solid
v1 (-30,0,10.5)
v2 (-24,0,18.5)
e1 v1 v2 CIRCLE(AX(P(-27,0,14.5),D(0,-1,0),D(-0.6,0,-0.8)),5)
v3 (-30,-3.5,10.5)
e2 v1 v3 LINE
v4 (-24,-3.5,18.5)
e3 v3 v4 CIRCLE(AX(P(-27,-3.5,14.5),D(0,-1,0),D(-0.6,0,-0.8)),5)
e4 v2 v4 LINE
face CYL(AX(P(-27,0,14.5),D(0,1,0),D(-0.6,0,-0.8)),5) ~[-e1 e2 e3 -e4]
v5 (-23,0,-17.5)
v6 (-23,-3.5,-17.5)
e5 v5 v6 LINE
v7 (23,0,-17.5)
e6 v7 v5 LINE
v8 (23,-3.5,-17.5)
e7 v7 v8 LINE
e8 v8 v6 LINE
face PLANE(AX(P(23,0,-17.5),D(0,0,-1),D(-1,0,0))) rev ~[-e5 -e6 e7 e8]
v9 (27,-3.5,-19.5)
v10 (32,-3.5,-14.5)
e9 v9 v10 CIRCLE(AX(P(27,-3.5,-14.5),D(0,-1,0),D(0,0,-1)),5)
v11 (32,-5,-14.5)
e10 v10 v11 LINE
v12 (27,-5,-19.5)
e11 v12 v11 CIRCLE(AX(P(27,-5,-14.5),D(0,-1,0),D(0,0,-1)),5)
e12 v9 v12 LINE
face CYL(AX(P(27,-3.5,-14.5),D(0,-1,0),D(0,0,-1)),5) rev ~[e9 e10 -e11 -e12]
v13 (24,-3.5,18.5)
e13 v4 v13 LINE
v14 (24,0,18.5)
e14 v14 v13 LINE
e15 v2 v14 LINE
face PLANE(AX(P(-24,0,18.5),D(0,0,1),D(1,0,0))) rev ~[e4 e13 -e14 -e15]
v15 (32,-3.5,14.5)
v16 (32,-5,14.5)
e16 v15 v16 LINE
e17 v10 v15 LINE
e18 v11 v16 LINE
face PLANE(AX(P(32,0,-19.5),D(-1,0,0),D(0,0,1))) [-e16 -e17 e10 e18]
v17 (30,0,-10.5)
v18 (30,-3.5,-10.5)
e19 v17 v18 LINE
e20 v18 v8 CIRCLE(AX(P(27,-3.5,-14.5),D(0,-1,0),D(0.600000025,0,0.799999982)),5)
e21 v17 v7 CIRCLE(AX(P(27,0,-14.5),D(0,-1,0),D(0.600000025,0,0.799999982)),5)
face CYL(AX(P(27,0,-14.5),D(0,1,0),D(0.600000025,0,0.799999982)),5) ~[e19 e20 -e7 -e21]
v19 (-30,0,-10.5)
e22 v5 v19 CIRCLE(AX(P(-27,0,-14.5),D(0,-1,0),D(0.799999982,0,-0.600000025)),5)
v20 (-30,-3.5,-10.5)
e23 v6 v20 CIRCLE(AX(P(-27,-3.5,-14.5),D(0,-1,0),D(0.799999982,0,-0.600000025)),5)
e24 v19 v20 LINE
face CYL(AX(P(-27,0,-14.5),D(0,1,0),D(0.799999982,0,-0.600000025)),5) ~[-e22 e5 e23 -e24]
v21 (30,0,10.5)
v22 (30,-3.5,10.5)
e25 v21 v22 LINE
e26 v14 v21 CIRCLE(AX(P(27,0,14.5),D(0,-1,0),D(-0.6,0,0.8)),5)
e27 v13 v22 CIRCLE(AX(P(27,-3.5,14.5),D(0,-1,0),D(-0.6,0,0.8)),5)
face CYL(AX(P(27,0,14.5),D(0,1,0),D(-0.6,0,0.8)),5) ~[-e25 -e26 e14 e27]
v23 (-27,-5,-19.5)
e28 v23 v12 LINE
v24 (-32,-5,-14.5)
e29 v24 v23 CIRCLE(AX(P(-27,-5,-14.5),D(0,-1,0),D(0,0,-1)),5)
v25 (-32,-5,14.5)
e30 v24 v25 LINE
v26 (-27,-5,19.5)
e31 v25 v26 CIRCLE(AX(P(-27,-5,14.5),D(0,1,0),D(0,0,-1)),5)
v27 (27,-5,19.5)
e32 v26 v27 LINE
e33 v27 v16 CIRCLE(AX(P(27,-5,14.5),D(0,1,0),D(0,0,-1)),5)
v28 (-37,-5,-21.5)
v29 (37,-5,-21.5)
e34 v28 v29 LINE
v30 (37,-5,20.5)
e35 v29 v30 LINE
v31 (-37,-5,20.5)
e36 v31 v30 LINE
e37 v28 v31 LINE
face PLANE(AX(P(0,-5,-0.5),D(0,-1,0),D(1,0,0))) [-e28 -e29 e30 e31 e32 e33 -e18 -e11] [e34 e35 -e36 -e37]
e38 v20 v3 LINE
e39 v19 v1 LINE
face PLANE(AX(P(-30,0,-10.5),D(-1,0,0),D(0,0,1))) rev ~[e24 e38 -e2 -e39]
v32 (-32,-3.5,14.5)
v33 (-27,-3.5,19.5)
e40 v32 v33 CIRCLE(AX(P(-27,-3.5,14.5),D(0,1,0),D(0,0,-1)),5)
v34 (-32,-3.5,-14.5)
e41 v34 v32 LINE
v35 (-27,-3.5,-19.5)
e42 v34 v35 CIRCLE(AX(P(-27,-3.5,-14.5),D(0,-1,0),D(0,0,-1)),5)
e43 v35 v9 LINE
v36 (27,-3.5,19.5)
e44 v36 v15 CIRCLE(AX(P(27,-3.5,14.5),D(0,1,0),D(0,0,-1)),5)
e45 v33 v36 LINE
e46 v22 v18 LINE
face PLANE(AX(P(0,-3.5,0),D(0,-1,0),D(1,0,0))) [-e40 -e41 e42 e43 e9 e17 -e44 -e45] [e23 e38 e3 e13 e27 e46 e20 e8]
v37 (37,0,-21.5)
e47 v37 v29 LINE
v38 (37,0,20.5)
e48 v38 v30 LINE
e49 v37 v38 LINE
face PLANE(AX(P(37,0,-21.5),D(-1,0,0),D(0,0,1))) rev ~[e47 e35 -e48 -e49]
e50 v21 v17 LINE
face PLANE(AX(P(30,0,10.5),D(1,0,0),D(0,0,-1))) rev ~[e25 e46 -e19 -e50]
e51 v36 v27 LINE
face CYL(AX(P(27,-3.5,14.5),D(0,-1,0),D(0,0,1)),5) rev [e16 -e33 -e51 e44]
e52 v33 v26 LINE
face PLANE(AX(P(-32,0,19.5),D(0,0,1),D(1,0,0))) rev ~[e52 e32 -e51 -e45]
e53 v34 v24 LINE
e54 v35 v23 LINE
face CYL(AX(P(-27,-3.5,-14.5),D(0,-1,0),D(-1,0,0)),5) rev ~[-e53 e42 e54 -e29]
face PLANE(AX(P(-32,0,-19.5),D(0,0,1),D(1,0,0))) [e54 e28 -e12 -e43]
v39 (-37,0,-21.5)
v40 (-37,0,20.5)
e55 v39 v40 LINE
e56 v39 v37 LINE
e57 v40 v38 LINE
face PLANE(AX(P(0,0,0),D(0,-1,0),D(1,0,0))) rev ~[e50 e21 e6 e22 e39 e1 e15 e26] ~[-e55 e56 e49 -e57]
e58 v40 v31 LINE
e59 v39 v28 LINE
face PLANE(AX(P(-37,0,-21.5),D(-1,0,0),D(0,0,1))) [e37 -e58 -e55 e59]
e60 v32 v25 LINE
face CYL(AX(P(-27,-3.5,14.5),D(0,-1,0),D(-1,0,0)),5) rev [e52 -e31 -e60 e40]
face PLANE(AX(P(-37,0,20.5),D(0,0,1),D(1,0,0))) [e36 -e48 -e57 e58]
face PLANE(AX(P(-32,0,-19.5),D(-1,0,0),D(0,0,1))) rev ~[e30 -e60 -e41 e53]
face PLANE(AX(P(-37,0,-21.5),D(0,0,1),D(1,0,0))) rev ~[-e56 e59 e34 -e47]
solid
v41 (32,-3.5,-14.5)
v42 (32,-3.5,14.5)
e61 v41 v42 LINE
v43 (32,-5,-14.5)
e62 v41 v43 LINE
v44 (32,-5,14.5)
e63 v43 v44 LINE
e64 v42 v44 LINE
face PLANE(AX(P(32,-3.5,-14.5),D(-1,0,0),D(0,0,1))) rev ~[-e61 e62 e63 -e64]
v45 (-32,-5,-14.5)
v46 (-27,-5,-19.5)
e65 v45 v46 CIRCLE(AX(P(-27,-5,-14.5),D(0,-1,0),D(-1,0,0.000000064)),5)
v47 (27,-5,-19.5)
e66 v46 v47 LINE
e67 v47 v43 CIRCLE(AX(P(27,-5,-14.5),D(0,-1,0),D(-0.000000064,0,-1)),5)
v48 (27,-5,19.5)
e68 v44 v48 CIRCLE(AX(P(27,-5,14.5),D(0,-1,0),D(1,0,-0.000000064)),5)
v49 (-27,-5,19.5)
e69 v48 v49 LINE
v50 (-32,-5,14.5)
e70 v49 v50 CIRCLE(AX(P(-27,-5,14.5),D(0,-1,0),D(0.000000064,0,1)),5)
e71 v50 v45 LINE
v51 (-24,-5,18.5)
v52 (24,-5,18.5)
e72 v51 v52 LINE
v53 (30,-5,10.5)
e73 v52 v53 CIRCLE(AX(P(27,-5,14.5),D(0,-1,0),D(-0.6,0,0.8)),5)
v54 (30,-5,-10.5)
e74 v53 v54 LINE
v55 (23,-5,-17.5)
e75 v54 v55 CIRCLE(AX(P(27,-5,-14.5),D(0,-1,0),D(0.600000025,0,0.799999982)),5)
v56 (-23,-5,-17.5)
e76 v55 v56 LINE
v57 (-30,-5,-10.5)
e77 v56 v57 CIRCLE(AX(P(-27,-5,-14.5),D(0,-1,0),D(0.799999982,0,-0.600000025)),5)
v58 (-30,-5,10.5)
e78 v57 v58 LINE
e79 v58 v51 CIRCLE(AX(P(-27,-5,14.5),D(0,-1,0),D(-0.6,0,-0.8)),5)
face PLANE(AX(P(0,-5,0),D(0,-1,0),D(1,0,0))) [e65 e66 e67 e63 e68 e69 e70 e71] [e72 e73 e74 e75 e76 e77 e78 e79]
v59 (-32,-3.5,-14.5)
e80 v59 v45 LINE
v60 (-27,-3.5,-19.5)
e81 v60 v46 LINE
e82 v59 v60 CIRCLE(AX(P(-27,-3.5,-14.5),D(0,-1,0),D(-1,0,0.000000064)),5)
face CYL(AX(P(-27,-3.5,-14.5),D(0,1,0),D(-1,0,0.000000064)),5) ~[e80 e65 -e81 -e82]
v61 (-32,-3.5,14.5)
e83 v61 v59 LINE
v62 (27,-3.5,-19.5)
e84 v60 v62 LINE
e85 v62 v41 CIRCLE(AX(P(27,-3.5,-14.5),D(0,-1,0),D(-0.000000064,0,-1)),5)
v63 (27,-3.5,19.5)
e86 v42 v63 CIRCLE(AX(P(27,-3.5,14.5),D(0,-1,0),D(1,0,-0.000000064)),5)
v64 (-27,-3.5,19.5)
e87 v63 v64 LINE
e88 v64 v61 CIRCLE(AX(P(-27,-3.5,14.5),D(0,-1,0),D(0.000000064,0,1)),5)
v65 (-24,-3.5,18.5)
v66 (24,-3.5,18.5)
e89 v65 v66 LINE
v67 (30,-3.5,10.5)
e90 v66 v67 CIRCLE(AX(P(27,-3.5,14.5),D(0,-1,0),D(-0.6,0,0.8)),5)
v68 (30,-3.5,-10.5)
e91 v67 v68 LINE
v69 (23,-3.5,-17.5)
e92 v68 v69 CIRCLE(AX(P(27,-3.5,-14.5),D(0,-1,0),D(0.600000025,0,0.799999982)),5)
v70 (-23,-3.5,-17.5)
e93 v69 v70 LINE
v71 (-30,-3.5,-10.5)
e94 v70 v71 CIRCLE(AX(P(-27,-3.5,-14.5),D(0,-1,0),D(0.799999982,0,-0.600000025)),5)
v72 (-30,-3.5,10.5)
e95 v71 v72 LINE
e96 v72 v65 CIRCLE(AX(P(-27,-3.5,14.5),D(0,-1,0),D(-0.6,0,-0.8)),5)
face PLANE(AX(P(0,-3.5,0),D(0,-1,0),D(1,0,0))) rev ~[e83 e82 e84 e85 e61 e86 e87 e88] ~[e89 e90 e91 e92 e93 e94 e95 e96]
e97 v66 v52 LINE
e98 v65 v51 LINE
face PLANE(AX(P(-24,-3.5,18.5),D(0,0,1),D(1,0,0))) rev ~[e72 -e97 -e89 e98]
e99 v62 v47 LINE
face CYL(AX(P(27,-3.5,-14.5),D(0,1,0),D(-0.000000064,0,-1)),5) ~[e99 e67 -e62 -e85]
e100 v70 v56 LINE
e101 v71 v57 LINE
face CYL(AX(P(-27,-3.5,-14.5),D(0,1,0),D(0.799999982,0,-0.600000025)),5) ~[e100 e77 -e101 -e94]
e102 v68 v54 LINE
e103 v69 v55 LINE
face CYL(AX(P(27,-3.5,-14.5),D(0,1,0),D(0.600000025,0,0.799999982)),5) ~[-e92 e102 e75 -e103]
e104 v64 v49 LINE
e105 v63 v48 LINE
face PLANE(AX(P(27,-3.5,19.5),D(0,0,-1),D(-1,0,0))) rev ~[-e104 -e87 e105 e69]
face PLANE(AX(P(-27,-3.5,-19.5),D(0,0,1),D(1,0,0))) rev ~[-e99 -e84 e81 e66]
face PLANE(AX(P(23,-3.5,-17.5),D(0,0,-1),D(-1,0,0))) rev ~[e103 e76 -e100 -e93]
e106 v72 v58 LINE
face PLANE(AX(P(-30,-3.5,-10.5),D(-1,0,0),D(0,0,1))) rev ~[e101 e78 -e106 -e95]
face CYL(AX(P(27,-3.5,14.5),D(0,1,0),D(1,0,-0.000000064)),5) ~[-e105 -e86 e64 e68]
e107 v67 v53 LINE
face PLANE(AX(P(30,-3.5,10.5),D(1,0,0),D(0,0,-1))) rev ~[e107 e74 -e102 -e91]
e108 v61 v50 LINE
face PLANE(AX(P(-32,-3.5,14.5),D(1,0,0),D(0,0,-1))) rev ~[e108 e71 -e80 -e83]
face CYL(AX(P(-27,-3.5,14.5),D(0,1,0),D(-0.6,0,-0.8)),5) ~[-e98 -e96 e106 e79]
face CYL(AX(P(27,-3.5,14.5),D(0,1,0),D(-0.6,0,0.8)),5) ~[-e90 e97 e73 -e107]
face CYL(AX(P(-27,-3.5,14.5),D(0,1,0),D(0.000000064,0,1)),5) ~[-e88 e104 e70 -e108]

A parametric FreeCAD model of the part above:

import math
import FreeCAD as App
import Part
import Sketcher
Q = App.Units.Quantity


def edges_at(feature, points):
    """Names of the edges that pass closest to the given points."""
    edges = feature.Shape.Edges
    near = lambda p: min(range(len(edges)), key=lambda i: edges[i].distToShape(Part.Vertex(*p))[0])
    return sorted({f"Edge{near(p) + 1}" for p in points})

doc = App.newDocument("Part")
body = doc.addObject("PartDesign::Body", "Body")

# Sketch on XZ plane
sketch1 = body.newObject("Sketcher::SketchObject", "Sketch")
sketch1.AttachmentSupport = (doc.getObject("XZ_Plane"), [""])
sketch1.MapMode = "FlatFace"
sketch1.addGeometry([
    Part.LineSegment(App.Vector(-37, 20, 0), App.Vector(-37, -22, 0)),  # 0
    Part.LineSegment(App.Vector(-37, -22, 0), App.Vector(37, -22, 0)),  # 1
    Part.LineSegment(App.Vector(37, -22, 0), App.Vector(37, 20, 0)),  # 2
    Part.LineSegment(App.Vector(37, 20, 0), App.Vector(-37, 20, 0)),  # 3
    Part.LineSegment(App.Vector(32, -20, 0), App.Vector(-32, -20, 0)),  # 4
    Part.LineSegment(App.Vector(-32, -20, 0), App.Vector(-32, 20, 0)),  # 5
    Part.LineSegment(App.Vector(-32, 20, 0), App.Vector(32, 20, 0)),  # 6
    Part.LineSegment(App.Vector(32, 20, 0), App.Vector(32, -20, 0)),  # 7
], False)
sketch1.addConstraint([
    Sketcher.Constraint("Coincident", 0, 2, 1, 1),
    Sketcher.Constraint("Coincident", 1, 2, 2, 1),
    Sketcher.Constraint("Coincident", 2, 2, 3, 1),
    Sketcher.Constraint("Coincident", 3, 2, 0, 1),
    Sketcher.Constraint("Coincident", 4, 2, 5, 1),
    Sketcher.Constraint("Coincident", 5, 2, 6, 1),
    Sketcher.Constraint("Coincident", 6, 2, 7, 1),
    Sketcher.Constraint("Coincident", 7, 2, 4, 1),
    Sketcher.Constraint("Vertical", 0),
    Sketcher.Constraint("Horizontal", 1),
    Sketcher.Constraint("Vertical", 2),
    Sketcher.Constraint("Horizontal", 3),
    Sketcher.Constraint("Horizontal", 4),
    Sketcher.Constraint("Vertical", 5),
    Sketcher.Constraint("Horizontal", 6),
    Sketcher.Constraint("Vertical", 7),
    Sketcher.Constraint("Symmetric", 4, 2, 6, 2, -1, 1),
    Sketcher.Constraint("DistanceX", 1, 1, 1, 2, Q("74 mm")),
    Sketcher.Constraint("DistanceX", 4, 2, 4, 1, Q("64 mm")),
    Sketcher.Constraint("DistanceY", 0, 2, 0, 1, Q("42 mm")),
    Sketcher.Constraint("DistanceY", 5, 1, 5, 2, Q("39 mm")),
    Sketcher.Constraint("DistanceX", 0, 2, -1, 1, Q("37 mm")),
    Sketcher.Constraint("DistanceY", 0, 2, 4, 2, Q("2 mm")),
])
pad1 = body.newObject("PartDesign::Pad", "Pad")
pad1.Profile = sketch1
pad1.Length = 5

# Sketch on XZ plane
sketch2 = body.newObject("Sketcher::SketchObject", "Sketch001")
sketch2.AttachmentSupport = (doc.getObject("XZ_Plane"), [""])
sketch2.MapMode = "FlatFace"
sketch2.addGeometry([
    Part.LineSegment(App.Vector(-32, 19.5, 0), App.Vector(-32, -19.5, 0)),  # 0
    Part.LineSegment(App.Vector(-32, -19.5, 0), App.Vector(32, -19.5, 0)),  # 1
    Part.LineSegment(App.Vector(32, -19.5, 0), App.Vector(32, 19.5, 0)),  # 2
    Part.LineSegment(App.Vector(32, 19.5, 0), App.Vector(-32, 19.5, 0)),  # 3
    Part.ArcOfCircle(Part.Circle(App.Vector(-27, -14.5, 0), App.Vector(0, 0, 1), 5), math.radians(-37), math.radians(127)),  # 4
    Part.LineSegment(App.Vector(-30, -10.5, 0), App.Vector(-30, 10.5, 0)),  # 5
    Part.ArcOfCircle(Part.Circle(App.Vector(-27, 14.5, 0), App.Vector(0, 0, 1), 5), math.radians(-127), math.radians(53)),  # 6
    Part.LineSegment(App.Vector(-24, 18.5, 0), App.Vector(24, 18.5, 0)),  # 7
    Part.ArcOfCircle(Part.Circle(App.Vector(27, 14.5, 0), App.Vector(0, 0, 1), 5), math.radians(127), math.radians(307)),  # 8
    Part.LineSegment(App.Vector(30, 10.5, 0), App.Vector(30, -10.5, 0)),  # 9
    Part.ArcOfCircle(Part.Circle(App.Vector(27, -14.5, 0), App.Vector(0, 0, 1), 5), math.radians(53), math.radians(217)),  # 10
    Part.LineSegment(App.Vector(23, -17.5, 0), App.Vector(-23, -17.5, 0)),  # 11
], False)
sketch2.addConstraint([
    Sketcher.Constraint("Coincident", 0, 2, 1, 1),
    Sketcher.Constraint("Coincident", 1, 2, 2, 1),
    Sketcher.Constraint("Coincident", 2, 2, 3, 1),
    Sketcher.Constraint("Coincident", 3, 2, 0, 1),
    Sketcher.Constraint("Coincident", 4, 2, 5, 1),
    Sketcher.Constraint("Coincident", 5, 2, 6, 1),
    Sketcher.Constraint("Coincident", 6, 2, 7, 1),
    Sketcher.Constraint("Coincident", 7, 2, 8, 1),
    Sketcher.Constraint("Coincident", 8, 2, 9, 1),
    Sketcher.Constraint("Coincident", 9, 2, 10, 1),
    Sketcher.Constraint("Coincident", 10, 2, 11, 1),
    Sketcher.Constraint("Coincident", 11, 2, 4, 1),
    Sketcher.Constraint("Vertical", 0),
    Sketcher.Constraint("Horizontal", 1),
    Sketcher.Constraint("Vertical", 2),
    Sketcher.Constraint("Horizontal", 3),
    Sketcher.Constraint("Vertical", 5),
    Sketcher.Constraint("Horizontal", 7),
    Sketcher.Constraint("Vertical", 9),
    Sketcher.Constraint("Horizontal", 11),
    Sketcher.Constraint("Equal", 4, 6),
    Sketcher.Constraint("Equal", 6, 8),
    Sketcher.Constraint("Equal", 8, 10),
    Sketcher.Constraint("Symmetric", 4, 3, 8, 3, -1, 1),
    Sketcher.Constraint("Symmetric", 6, 3, 10, 3, -1, 1),
    Sketcher.Constraint("Symmetric", 0, 2, 2, 2, -1, 1),
    Sketcher.Constraint("Symmetric", 6, 3, 8, 3, -2),
    Sketcher.Constraint("Horizontal", 5, 2, 8, 2),
    Sketcher.Constraint("Radius", 4, Q("5 mm")),
    Sketcher.Constraint("DistanceX", 1, 1, 1, 2, Q("64 mm")),
    Sketcher.Constraint("DistanceX", 7, 1, 7, 2, Q("48 mm")),
    Sketcher.Constraint("DistanceX", 11, 2, 11, 1, Q("46 mm")),
    Sketcher.Constraint("DistanceY", 0, 2, 0, 1, Q("39 mm")),
    Sketcher.Constraint("DistanceY", 5, 1, 5, 2, Q("21 mm")),
    Sketcher.Constraint("DistanceX", 4, 3, -1, 1, Q("27 mm")),
    Sketcher.Constraint("DistanceX", 4, 2, -1, 1, Q("30 mm")),
])
pad2 = body.newObject("PartDesign::Pad", "Pad001")
pad2.Profile = sketch2
pad2.Length = 3.5
doc.recompute()

fillet = body.newObject("PartDesign::Fillet", "Fillet")
fillet.Base = (pad2, edges_at(pad2, [
    (-32, -4.25, 19.5),
    (-32, -4.25, -19.5),
    (32, -4.25, -19.5),
    (32, -4.25, 19.5),
]))
fillet.Radius = 5
body2 = doc.addObject("PartDesign::Body", "Body001")

# Sketch on XZ plane
sketch3 = body2.newObject("Sketcher::SketchObject", "Sketch002")
sketch3.AttachmentSupport = (doc.getObject("XZ_Plane001"), [""])
sketch3.MapMode = "FlatFace"
sketch3.AttachmentOffset = App.Placement(App.Vector(0, 0, 3.5), App.Rotation())
sketch3.addGeometry([
    Part.LineSegment(App.Vector(27, 19.5, 0), App.Vector(-27, 19.5, 0)),  # 0
    Part.ArcOfCircle(Part.Circle(App.Vector(-27, 14.5, 0), App.Vector(0, 0, 1), 5), math.radians(90), math.radians(180)),  # 1
    Part.LineSegment(App.Vector(-32, 14.5, 0), App.Vector(-32, -14.5, 0)),  # 2
    Part.ArcOfCircle(Part.Circle(App.Vector(-27, -14.5, 0), App.Vector(0, 0, 1), 5), math.radians(180), math.radians(270)),  # 3
    Part.LineSegment(App.Vector(-27, -19.5, 0), App.Vector(27, -19.5, 0)),  # 4
    Part.ArcOfCircle(Part.Circle(App.Vector(27, -14.5, 0), App.Vector(0, 0, 1), 5), math.radians(-90), math.radians(0)),  # 5
    Part.LineSegment(App.Vector(32, -14.5, 0), App.Vector(32, 14.5, 0)),  # 6
    Part.ArcOfCircle(Part.Circle(App.Vector(27, 14.5, 0), App.Vector(0, 0, 1), 5), math.radians(0), math.radians(90)),  # 7
    Part.ArcOfCircle(Part.Circle(App.Vector(-27, -14.5, 0), App.Vector(0, 0, 1), 5), math.radians(-37), math.radians(127)),  # 8
    Part.LineSegment(App.Vector(-30, -10.5, 0), App.Vector(-30, 10.5, 0)),  # 9
    Part.ArcOfCircle(Part.Circle(App.Vector(-27, 14.5, 0), App.Vector(0, 0, 1), 5), math.radians(-127), math.radians(53)),  # 10
    Part.LineSegment(App.Vector(-24, 18.5, 0), App.Vector(24, 18.5, 0)),  # 11
    Part.ArcOfCircle(Part.Circle(App.Vector(27, 14.5, 0), App.Vector(0, 0, 1), 5), math.radians(127), math.radians(307)),  # 12
    Part.LineSegment(App.Vector(30, 10.5, 0), App.Vector(30, -10.5, 0)),  # 13
    Part.ArcOfCircle(Part.Circle(App.Vector(27, -14.5, 0), App.Vector(0, 0, 1), 5), math.radians(53), math.radians(217)),  # 14
    Part.LineSegment(App.Vector(23, -17.5, 0), App.Vector(-23, -17.5, 0)),  # 15
], False)
sketch3.addConstraint([
    Sketcher.Constraint("Tangent", 0, 2, 1, 1),
    Sketcher.Constraint("Tangent", 1, 2, 2, 1),
    Sketcher.Constraint("Tangent", 2, 2, 3, 1),
    Sketcher.Constraint("Tangent", 3, 2, 4, 1),
    Sketcher.Constraint("Tangent", 4, 2, 5, 1),
    Sketcher.Constraint("Tangent", 5, 2, 6, 1),
    Sketcher.Constraint("Tangent", 6, 2, 7, 1),
    Sketcher.Constraint("Tangent", 7, 2, 0, 1),
    Sketcher.Constraint("Coincident", 8, 2, 9, 1),
    Sketcher.Constraint("Coincident", 9, 2, 10, 1),
    Sketcher.Constraint("Coincident", 10, 2, 11, 1),
    Sketcher.Constraint("Coincident", 11, 2, 12, 1),
    Sketcher.Constraint("Coincident", 12, 2, 13, 1),
    Sketcher.Constraint("Coincident", 13, 2, 14, 1),
    Sketcher.Constraint("Coincident", 14, 2, 15, 1),
    Sketcher.Constraint("Coincident", 15, 2, 8, 1),
    Sketcher.Constraint("Horizontal", 0),
    Sketcher.Constraint("Vertical", 2),
    Sketcher.Constraint("Horizontal", 4),
    Sketcher.Constraint("Vertical", 6),
    Sketcher.Constraint("Vertical", 9),
    Sketcher.Constraint("Horizontal", 11),
    Sketcher.Constraint("Vertical", 13),
    Sketcher.Constraint("Horizontal", 15),
    Sketcher.Constraint("Coincident", 8, 3, 3, 3),
    Sketcher.Constraint("Coincident", 10, 3, 1, 3),
    Sketcher.Constraint("Coincident", 12, 3, 7, 3),
    Sketcher.Constraint("Coincident", 14, 3, 5, 3),
    Sketcher.Constraint("Equal", 1, 3),
    Sketcher.Constraint("Equal", 3, 5),
    Sketcher.Constraint("Equal", 5, 7),
    Sketcher.Constraint("Equal", 7, 8),
    Sketcher.Constraint("Equal", 8, 10),
    Sketcher.Constraint("Equal", 10, 12),
    Sketcher.Constraint("Equal", 12, 14),
    Sketcher.Constraint("Symmetric", 1, 3, 5, 3, -1, 1),
    Sketcher.Constraint("Horizontal", 9, 2, 12, 2),
    Sketcher.Constraint("Radius", 1, Q("5 mm")),
    Sketcher.Constraint("DistanceX", 0, 2, 0, 1, Q("54 mm")),
    Sketcher.Constraint("DistanceX", 11, 1, 11, 2, Q("48 mm")),
    Sketcher.Constraint("DistanceX", 15, 2, 15, 1, Q("46 mm")),
    Sketcher.Constraint("DistanceY", 2, 2, 2, 1, Q("29 mm")),
    Sketcher.Constraint("DistanceY", 9, 1, 9, 2, Q("21 mm")),
])
pad3 = body2.newObject("PartDesign::Pad", "Pad002")
pad3.Profile = sketch3
pad3.Length = 1.5

doc.recompute()
